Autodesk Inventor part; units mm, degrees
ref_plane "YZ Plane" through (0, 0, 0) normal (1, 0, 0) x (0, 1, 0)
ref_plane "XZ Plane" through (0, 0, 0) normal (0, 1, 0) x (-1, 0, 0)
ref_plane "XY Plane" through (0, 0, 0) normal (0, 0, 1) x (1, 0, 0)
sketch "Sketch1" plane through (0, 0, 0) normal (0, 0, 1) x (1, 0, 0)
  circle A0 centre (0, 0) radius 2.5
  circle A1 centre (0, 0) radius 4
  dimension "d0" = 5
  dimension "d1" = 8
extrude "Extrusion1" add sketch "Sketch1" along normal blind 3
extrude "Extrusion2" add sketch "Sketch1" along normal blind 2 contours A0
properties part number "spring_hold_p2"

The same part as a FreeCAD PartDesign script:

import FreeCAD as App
import Part
import Sketcher
Q = App.Units.Quantity

doc = App.newDocument("Part")
params = doc.addObject("Spreadsheet::Sheet", "Params")
for row, (alias, value) in enumerate([
    ("sketch1_diameter", "8 mm"),
    ("sketch1_diameter2", "5 mm"),
    ("pad1_length", "3 mm"),
    ("sketch2_diameter", "5 mm"),
    ("pad2_length", "2 mm"),
], start=1):
    params.set(f"A{row}", alias)
    params.set(f"B{row}", "=" + value)
    params.setAlias(f"B{row}", alias)

body = doc.addObject("PartDesign::Body", "Body")

sketch1 = doc.addObject("Sketcher::SketchObject", "Sketch")
body.addObject(sketch1)
sketch1.AttachmentSupport = (doc.XY_Plane, [""])
sketch1.MapMode = "FlatFace"
sketch1.addGeometry(Part.Circle(App.Vector(0, 0, 0), App.Vector(0, 0, 1), 4), False)
sketch1.addGeometry(Part.Circle(App.Vector(0, 0, 0), App.Vector(0, 0, 1), 2.5), False)
sketch1.addConstraint(Sketcher.Constraint("Coincident", 0, 3, -1, 1))
sketch1.addConstraint(Sketcher.Constraint("Coincident", 1, 3, -1, 1))
sketch1.addConstraint(Sketcher.Constraint("Diameter", 0, Q("8 mm")))
sketch1.addConstraint(Sketcher.Constraint("Diameter", 1, Q("5 mm")))
sketch1.setExpression("Constraints[2]", "Params.sketch1_diameter")
sketch1.setExpression("Constraints[3]", "Params.sketch1_diameter2")
pad1 = doc.addObject("PartDesign::Pad", "Pad")
body.addObject(pad1)
pad1.Profile = sketch1
pad1.setExpression("Length", "Params.pad1_length")

sketch2 = doc.addObject("Sketcher::SketchObject", "Sketch001")
body.addObject(sketch2)
sketch2.AttachmentSupport = (doc.XY_Plane, [""])
sketch2.MapMode = "FlatFace"
sketch2.addGeometry(Part.Circle(App.Vector(0, 0, 0), App.Vector(0, 0, 1), 2.5), False)
sketch2.addConstraint(Sketcher.Constraint("Coincident", 0, 3, -1, 1))
sketch2.addConstraint(Sketcher.Constraint("Diameter", 0, Q("5 mm")))
sketch2.setExpression("Constraints[1]", "Params.sketch2_diameter")
pad2 = doc.addObject("PartDesign::Pad", "Pad001")
body.addObject(pad2)
pad2.Profile = sketch2
pad2.setExpression("Length", "Params.pad2_length")

doc.recompute()
